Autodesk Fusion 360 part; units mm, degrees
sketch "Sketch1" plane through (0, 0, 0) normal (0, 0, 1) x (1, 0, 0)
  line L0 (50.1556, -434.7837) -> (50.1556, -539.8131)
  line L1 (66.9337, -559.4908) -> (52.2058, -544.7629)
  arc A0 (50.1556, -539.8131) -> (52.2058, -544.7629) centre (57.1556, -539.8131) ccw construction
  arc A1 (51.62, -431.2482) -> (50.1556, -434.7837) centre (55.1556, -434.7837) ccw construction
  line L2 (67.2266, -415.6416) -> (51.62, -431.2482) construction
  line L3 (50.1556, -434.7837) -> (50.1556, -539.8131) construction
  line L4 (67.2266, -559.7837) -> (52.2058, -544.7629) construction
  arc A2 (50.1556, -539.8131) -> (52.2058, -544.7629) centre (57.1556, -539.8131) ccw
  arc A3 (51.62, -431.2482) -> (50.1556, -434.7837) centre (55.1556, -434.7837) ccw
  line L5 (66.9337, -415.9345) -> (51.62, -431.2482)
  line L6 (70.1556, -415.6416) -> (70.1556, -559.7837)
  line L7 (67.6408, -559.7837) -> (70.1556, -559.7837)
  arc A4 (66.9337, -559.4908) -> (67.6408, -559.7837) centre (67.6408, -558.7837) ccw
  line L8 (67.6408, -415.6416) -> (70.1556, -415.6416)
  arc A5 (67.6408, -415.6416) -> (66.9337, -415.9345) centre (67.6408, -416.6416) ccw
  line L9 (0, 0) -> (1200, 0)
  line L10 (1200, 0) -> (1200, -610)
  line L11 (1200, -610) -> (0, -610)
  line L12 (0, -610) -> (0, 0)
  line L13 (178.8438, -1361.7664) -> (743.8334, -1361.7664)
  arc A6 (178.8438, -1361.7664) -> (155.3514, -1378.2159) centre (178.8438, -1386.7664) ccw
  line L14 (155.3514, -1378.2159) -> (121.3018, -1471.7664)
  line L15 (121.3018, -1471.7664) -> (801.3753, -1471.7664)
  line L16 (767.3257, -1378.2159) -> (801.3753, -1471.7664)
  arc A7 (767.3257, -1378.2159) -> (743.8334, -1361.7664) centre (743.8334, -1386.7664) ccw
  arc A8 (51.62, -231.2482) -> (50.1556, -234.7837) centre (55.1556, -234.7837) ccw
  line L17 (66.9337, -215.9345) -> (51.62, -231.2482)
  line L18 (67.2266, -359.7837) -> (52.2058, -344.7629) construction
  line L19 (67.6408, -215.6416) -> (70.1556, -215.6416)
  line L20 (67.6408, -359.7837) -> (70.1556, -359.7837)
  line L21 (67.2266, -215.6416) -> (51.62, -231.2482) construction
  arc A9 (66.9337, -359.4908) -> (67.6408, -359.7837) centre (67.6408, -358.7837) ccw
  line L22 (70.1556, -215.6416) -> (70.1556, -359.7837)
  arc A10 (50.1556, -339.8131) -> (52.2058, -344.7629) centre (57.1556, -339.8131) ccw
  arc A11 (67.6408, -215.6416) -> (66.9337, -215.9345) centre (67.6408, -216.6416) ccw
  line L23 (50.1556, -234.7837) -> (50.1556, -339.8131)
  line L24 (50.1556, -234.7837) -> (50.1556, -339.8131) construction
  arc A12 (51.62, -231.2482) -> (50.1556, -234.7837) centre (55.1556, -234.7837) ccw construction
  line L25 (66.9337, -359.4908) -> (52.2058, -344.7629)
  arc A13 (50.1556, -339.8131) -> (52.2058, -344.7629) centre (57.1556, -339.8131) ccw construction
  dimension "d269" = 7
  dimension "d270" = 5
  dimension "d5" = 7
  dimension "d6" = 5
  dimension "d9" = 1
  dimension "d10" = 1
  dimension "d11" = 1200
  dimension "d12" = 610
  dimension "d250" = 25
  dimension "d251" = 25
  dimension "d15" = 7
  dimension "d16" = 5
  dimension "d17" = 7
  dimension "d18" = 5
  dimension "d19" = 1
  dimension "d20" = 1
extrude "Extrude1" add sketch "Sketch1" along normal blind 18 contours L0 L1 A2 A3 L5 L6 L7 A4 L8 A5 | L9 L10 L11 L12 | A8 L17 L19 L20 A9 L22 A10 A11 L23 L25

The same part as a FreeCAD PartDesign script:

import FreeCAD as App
import Part
import Sketcher
Q = App.Units.Quantity


def add_polygon(sketch, points):
    """Adds a closed chain of lines whose ends are joined by coincident constraints."""
    first, n = sketch.GeometryCount, len(points)
    for a, b in zip(points, points[1:] + points[:1]):
        sketch.addGeometry(Part.LineSegment(App.Vector(*a, 0), App.Vector(*b, 0)), False)
    for i in range(n):
        sketch.addConstraint(Sketcher.Constraint("Coincident", first + i, 2, first + (i + 1) % n, 1))

doc = App.newDocument("Part")
body = doc.addObject("PartDesign::Body", "Body")

sketch1 = body.newObject("Sketcher::SketchObject", "Sketch")
sketch1.AttachmentSupport = (doc.getObject("XY_Plane"), [""])
sketch1.MapMode = "FlatFace"
add_polygon(sketch1, [(1200, 0), (0, 0), (0, -610), (1200, -610)])
sketch1.addConstraint([
    Sketcher.Constraint("Horizontal", 0),
    Sketcher.Constraint("Vertical", 1),
    Sketcher.Constraint("Horizontal", 2),
    Sketcher.Constraint("Vertical", 3),
    Sketcher.Constraint("Coincident", 0, 2, -1, 1),
    Sketcher.Constraint("DistanceX", 0, 2, 0, 1, Q("1200 mm")),
    Sketcher.Constraint("DistanceY", 1, 2, 1, 1, Q("610 mm")),
])
pad1 = body.newObject("PartDesign::Pad", "Pad")
pad1.Profile = sketch1
pad1.Length = 18

doc.recompute()
